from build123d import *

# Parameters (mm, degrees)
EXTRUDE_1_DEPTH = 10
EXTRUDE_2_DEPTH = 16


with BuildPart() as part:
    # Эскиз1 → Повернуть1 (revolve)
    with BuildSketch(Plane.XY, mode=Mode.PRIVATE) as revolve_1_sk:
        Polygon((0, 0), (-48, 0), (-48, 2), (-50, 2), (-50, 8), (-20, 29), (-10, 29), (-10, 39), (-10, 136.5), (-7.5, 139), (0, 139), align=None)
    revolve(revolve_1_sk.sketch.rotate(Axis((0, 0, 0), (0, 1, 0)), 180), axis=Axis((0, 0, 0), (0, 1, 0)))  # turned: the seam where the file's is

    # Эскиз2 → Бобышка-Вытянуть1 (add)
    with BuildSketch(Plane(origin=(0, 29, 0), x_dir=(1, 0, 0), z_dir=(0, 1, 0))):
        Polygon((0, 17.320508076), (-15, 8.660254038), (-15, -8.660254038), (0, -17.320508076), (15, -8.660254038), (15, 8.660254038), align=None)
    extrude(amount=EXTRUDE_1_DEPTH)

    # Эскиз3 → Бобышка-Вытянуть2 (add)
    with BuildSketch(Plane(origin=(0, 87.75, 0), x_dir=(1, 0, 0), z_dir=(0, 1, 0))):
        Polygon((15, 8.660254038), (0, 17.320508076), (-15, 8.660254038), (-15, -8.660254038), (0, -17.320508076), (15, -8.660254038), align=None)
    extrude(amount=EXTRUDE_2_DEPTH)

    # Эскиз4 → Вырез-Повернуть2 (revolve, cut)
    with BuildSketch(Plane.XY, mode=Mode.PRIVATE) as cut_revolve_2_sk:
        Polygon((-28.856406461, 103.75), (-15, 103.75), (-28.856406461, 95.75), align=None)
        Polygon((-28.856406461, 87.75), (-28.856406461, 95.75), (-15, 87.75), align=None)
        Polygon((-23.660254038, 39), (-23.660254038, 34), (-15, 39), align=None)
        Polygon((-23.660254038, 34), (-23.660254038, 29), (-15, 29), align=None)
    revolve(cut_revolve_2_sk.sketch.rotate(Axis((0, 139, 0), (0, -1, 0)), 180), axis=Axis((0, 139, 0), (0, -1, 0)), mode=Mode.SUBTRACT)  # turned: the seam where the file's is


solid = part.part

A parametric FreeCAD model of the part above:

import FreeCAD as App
import Part
import Sketcher
Q = App.Units.Quantity


def add_polygon(sketch, points):
    """Adds a closed chain of lines whose ends are joined by coincident constraints."""
    first, n = sketch.GeometryCount, len(points)
    for a, b in zip(points, points[1:] + points[:1]):
        sketch.addGeometry(Part.LineSegment(App.Vector(*a, 0), App.Vector(*b, 0)), False)
    for i in range(n):
        sketch.addConstraint(Sketcher.Constraint("Coincident", first + i, 2, first + (i + 1) % n, 1))

doc = App.newDocument("Part")
body = doc.addObject("PartDesign::Body", "Body")

sketch1 = doc.addObject("Sketcher::SketchObject", "Sketch")
body.addObject(sketch1)
sketch1.AttachmentSupport = (doc.XY_Plane, [""])
sketch1.MapMode = "FlatFace"
add_polygon(sketch1, [(-48, 0), (0, 0), (0, 139), (-7.5, 139), (-10, 136.5), (-10, 29), (-20, 29), (-50, 8), (-50, 2), (-48, 2)])
sketch1.addConstraint([
    Sketcher.Constraint("Horizontal", 0),
    Sketcher.Constraint("Vertical", 1),
    Sketcher.Constraint("Horizontal", 2),
    Sketcher.Constraint("Vertical", 4),
    Sketcher.Constraint("Horizontal", 5),
    Sketcher.Constraint("Vertical", 7),
    Sketcher.Constraint("Horizontal", 8),
    Sketcher.Constraint("Vertical", 9),
    Sketcher.Constraint("Coincident", 0, 2, -1, 1),
    Sketcher.Constraint("Equal", 8, 9),
    Sketcher.Constraint("DistanceX", 0, 1, 0, 2, Q("48 mm")),
    Sketcher.Constraint("DistanceX", 5, 2, 5, 1, Q("10 mm")),
    Sketcher.Constraint("DistanceX", 8, 1, 8, 2, Q("2 mm")),
    Sketcher.Constraint("DistanceY", 1, 1, 1, 2, Q("139 mm")),
    Sketcher.Constraint("DistanceY", 7, 2, 7, 1, Q("6 mm")),
    Sketcher.Constraint("Angle", 3, Q("-135 deg")),
    Sketcher.Constraint("DistanceX", 2, 2, 2, 1, Q("7.5 mm")),
    Sketcher.Constraint("DistanceY", 4, 2, 4, 1, Q("107.5 mm")),
    Sketcher.Constraint("DistanceX", 3, 2, -1, 1, Q("10 mm")),
])
revolution = doc.addObject("PartDesign::Revolution", "Revolution")
body.addObject(revolution)
revolution.Profile = sketch1
revolution.ReferenceAxis = (sketch1, ["V_Axis"])
revolution.Angle = 360

sketch2 = doc.addObject("Sketcher::SketchObject", "Sketch001")
body.addObject(sketch2)
sketch2.AttachmentSupport = (doc.XZ_Plane, [""])
sketch2.MapMode = "FlatFace"
sketch2.AttachmentOffset = App.Placement(App.Vector(0, 0, -29), App.Rotation())
add_polygon(sketch2, [(0, -17), (-15, -9), (-15, 9), (0, 17), (15, 9), (15, -9)])
sketch2.addConstraint([
    Sketcher.Constraint("Vertical", 1),
    Sketcher.Constraint("Vertical", 4),
    Sketcher.Constraint("Symmetric", 0, 2, 3, 2, -1, 1),
    Sketcher.Constraint("Symmetric", 2, 2, 5, 2, -1, 1),
    Sketcher.Constraint("PointOnObject", 2, 2, -2),
    Sketcher.Constraint("Parallel", 2, 5),
    Sketcher.Constraint("Horizontal", 1, 2, 3, 2),
    Sketcher.Constraint("Angle", 0, Q("150 deg")),
    Sketcher.Constraint("DistanceX", 0, 2, -1, 1, Q("15 mm")),
    Sketcher.Constraint("DistanceY", 1, 1, 1, 2, Q("17.320508 mm")),
])
pad1 = doc.addObject("PartDesign::Pad", "Pad")
body.addObject(pad1)
pad1.Profile = sketch2
pad1.Length = 10
pad1.Reversed = True

sketch3 = doc.addObject("Sketcher::SketchObject", "Sketch002")
body.addObject(sketch3)
sketch3.AttachmentSupport = (doc.XZ_Plane, [""])
sketch3.MapMode = "FlatFace"
sketch3.AttachmentOffset = App.Placement(App.Vector(0, 0, -87.75), App.Rotation())
add_polygon(sketch3, [(15, -9), (0, -17), (-15, -9), (-15, 9), (0, 17), (15, 9)])
sketch3.addConstraint([
    Sketcher.Constraint("Vertical", 2),
    Sketcher.Constraint("Vertical", 5),
    Sketcher.Constraint("Symmetric", 0, 2, 3, 2, -1, 1),
    Sketcher.Constraint("Symmetric", 1, 2, 4, 2, -1, 1),
    Sketcher.Constraint("PointOnObject", 0, 2, -2),
    Sketcher.Constraint("Parallel", 0, 3),
    Sketcher.Constraint("Horizontal", 2, 2, 4, 2),
    Sketcher.Constraint("Angle", 0, Q("-150 deg")),
    Sketcher.Constraint("DistanceX", 1, 2, -1, 1, Q("15 mm")),
    Sketcher.Constraint("DistanceY", 2, 1, 2, 2, Q("17.320508 mm")),
])
pad2 = doc.addObject("PartDesign::Pad", "Pad001")
body.addObject(pad2)
pad2.Profile = sketch3
pad2.Length = 16
pad2.Reversed = True

sketch4 = doc.addObject("Sketcher::SketchObject", "Sketch003")
body.addObject(sketch4)
sketch4.AttachmentSupport = (doc.XY_Plane, [""])
sketch4.MapMode = "FlatFace"
add_polygon(sketch4, [(-15, 104), (-29, 104), (-29, 96)])
add_polygon(sketch4, [(-29, 96), (-29, 88), (-15, 88)])
add_polygon(sketch4, [(-24, 39), (-24, 34), (-15, 39)])
add_polygon(sketch4, [(-24, 34), (-24, 29), (-15, 29)])
sketch4.addConstraint([
    Sketcher.Constraint("Horizontal", 0),
    Sketcher.Constraint("Vertical", 1),
    Sketcher.Constraint("Vertical", 3),
    Sketcher.Constraint("Horizontal", 4),
    Sketcher.Constraint("Vertical", 6),
    Sketcher.Constraint("Horizontal", 8),
    Sketcher.Constraint("Vertical", 9),
    Sketcher.Constraint("Horizontal", 10),
    Sketcher.Constraint("Coincident", 5, 2, 1, 2),
    Sketcher.Constraint("Coincident", 11, 2, 6, 2),
    Sketcher.Constraint("Parallel", 2, 7),
    Sketcher.Constraint("Parallel", 5, 11),
    Sketcher.Constraint("Vertical", 2, 2, 4, 2),
    Sketcher.Constraint("Vertical", 4, 2, 7, 2),
    Sketcher.Constraint("Vertical", 7, 2, 10, 2),
    Sketcher.Constraint("Equal", 1, 3),
    Sketcher.Constraint("DistanceY", 1, 2, 1, 1, Q("8 mm")),
    Sketcher.Constraint("DistanceY", 6, 2, 6, 1, Q("5 mm")),
    Sketcher.Constraint("Angle", 2, Q("30 deg")),
    Sketcher.Constraint("DistanceX", 2, 2, -1, 1, Q("15 mm")),
    Sketcher.Constraint("DistanceY", -1, 1, 6, 2, Q("34 mm")),
    Sketcher.Constraint("DistanceY", -1, 1, 0, 2, Q("103.75 mm")),
])
groove = doc.addObject("PartDesign::Groove", "Groove")
body.addObject(groove)
groove.Profile = sketch4
groove.ReferenceAxis = (sketch4, ["V_Axis"])
groove.Angle = 360

doc.recompute()
